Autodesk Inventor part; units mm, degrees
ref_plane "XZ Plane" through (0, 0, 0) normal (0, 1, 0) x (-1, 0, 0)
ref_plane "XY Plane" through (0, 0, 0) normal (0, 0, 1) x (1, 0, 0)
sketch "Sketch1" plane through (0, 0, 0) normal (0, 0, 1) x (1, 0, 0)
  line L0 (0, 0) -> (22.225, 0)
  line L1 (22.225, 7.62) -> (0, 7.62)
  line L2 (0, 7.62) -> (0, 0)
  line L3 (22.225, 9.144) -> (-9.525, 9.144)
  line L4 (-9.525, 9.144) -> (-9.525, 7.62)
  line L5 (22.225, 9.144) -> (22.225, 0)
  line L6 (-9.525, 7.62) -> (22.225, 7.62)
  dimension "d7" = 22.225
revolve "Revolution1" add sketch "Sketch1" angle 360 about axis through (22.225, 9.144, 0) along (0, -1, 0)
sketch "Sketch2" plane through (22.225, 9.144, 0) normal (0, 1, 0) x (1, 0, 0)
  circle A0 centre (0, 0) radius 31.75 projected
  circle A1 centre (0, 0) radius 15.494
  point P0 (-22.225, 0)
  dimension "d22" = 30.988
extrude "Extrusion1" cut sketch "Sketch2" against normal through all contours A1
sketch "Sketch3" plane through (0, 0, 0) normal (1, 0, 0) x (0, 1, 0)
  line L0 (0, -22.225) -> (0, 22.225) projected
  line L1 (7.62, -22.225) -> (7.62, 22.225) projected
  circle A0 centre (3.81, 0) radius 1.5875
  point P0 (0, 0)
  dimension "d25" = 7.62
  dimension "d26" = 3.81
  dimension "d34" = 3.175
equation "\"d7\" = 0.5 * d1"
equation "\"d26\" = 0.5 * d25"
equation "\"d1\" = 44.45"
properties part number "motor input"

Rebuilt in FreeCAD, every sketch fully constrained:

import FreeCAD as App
import Part
import Sketcher
Q = App.Units.Quantity


def add_polygon(sketch, points):
    """Adds a closed chain of lines whose ends are joined by coincident constraints."""
    first, n = sketch.GeometryCount, len(points)
    for a, b in zip(points, points[1:] + points[:1]):
        sketch.addGeometry(Part.LineSegment(App.Vector(*a, 0), App.Vector(*b, 0)), False)
    for i in range(n):
        sketch.addConstraint(Sketcher.Constraint("Coincident", first + i, 2, first + (i + 1) % n, 1))

doc = App.newDocument("Part")
params = doc.addObject("Spreadsheet::Sheet", "Params")
for row, (alias, value) in enumerate([
    ("sketch1_width", "0.875 in"),
    ("sketch1_height", "0.3 in"),
    ("sketch1_width2", "1.25 in"),
    ("sketch1_height2", "0.36 in"),
    ("revolution_angle", "360 deg"),
    ("sketch2_diameter", "1.22 in"),
], start=1):
    params.set(f"A{row}", alias)
    params.set(f"B{row}", "=" + value)
    params.setAlias(f"B{row}", alias)

body = doc.addObject("PartDesign::Body", "Body")

# Sketch on XY plane
sketch1 = doc.addObject("Sketcher::SketchObject", "Sketch")
body.addObject(sketch1)
sketch1.AttachmentSupport = (doc.XY_Plane, [""])
sketch1.MapMode = "FlatFace"
add_polygon(sketch1, [(0, 7.62), (0, 0), (22.225, 0), (22.225, 9.144), (-9.525, 9.144), (-9.525, 7.62)])  # lines 0-5
sketch1.addGeometry(Part.LineSegment(App.Vector(22.225, 9.144, 0), App.Vector(22.225, 0, 0)), True)  # axis
sketch1.addConstraint(Sketcher.Constraint("Vertical", 0))
sketch1.addConstraint(Sketcher.Constraint("Horizontal", 1))
sketch1.addConstraint(Sketcher.Constraint("Vertical", 2))
sketch1.addConstraint(Sketcher.Constraint("Horizontal", 3))
sketch1.addConstraint(Sketcher.Constraint("Vertical", 4))
sketch1.addConstraint(Sketcher.Constraint("Horizontal", 5))
sketch1.addConstraint(Sketcher.Constraint("Vertical", 6))
sketch1.addConstraint(Sketcher.Constraint("Coincident", 0, 2, -1, 1))
sketch1.addConstraint(Sketcher.Constraint("Coincident", 6, 1, 2, 2))
sketch1.addConstraint(Sketcher.Constraint("PointOnObject", 6, 2, -1))
sketch1.addConstraint(Sketcher.Constraint("DistanceX", 1, 1, 1, 2, Q("0.875 in")))
sketch1.addConstraint(Sketcher.Constraint("DistanceY", 0, 2, 0, 1, Q("0.3 in")))
sketch1.addConstraint(Sketcher.Constraint("DistanceX", 3, 2, 3, 1, Q("1.25 in")))
sketch1.addConstraint(Sketcher.Constraint("DistanceY", 2, 1, 2, 2, Q("0.36 in")))
sketch1.setExpression("Constraints[16]", "Params.sketch1_width")
sketch1.setExpression("Constraints[17]", "Params.sketch1_height")
sketch1.setExpression("Constraints[18]", "Params.sketch1_width2")
sketch1.setExpression("Constraints[19]", "Params.sketch1_height2")
revolution = doc.addObject("PartDesign::Revolution", "Revolution")
body.addObject(revolution)
revolution.Profile = sketch1
revolution.ReferenceAxis = (sketch1, ["Axis0"])
revolution.setExpression("Angle", "Params.revolution_angle")

# Sketch on XZ plane
sketch2 = doc.addObject("Sketcher::SketchObject", "Sketch001")
body.addObject(sketch2)
sketch2.AttachmentSupport = (doc.XZ_Plane, [""])
sketch2.MapMode = "FlatFace"
sketch2.AttachmentOffset = App.Placement(App.Vector(0, 0, -0.36 * 25.4), App.Rotation())
sketch2.addGeometry(Part.Circle(App.Vector(22.225, 0, 0), App.Vector(0, 0, 1), 15.494), False)
sketch2.addConstraint(Sketcher.Constraint("PointOnObject", 0, 3, -1))
sketch2.addConstraint(Sketcher.Constraint("Diameter", 0, Q("1.22 in")))
sketch2.addConstraint(Sketcher.Constraint("DistanceX", -1, 1, 0, 3, Q("0.875 in")))
sketch2.setExpression("Constraints[1]", "Params.sketch2_diameter")
pocket1 = doc.addObject("PartDesign::Pocket", "Pocket")
body.addObject(pocket1)
pocket1.Profile = sketch2
pocket1.Type = "ThroughAll"
pocket1.Reversed = True

doc.recompute()
